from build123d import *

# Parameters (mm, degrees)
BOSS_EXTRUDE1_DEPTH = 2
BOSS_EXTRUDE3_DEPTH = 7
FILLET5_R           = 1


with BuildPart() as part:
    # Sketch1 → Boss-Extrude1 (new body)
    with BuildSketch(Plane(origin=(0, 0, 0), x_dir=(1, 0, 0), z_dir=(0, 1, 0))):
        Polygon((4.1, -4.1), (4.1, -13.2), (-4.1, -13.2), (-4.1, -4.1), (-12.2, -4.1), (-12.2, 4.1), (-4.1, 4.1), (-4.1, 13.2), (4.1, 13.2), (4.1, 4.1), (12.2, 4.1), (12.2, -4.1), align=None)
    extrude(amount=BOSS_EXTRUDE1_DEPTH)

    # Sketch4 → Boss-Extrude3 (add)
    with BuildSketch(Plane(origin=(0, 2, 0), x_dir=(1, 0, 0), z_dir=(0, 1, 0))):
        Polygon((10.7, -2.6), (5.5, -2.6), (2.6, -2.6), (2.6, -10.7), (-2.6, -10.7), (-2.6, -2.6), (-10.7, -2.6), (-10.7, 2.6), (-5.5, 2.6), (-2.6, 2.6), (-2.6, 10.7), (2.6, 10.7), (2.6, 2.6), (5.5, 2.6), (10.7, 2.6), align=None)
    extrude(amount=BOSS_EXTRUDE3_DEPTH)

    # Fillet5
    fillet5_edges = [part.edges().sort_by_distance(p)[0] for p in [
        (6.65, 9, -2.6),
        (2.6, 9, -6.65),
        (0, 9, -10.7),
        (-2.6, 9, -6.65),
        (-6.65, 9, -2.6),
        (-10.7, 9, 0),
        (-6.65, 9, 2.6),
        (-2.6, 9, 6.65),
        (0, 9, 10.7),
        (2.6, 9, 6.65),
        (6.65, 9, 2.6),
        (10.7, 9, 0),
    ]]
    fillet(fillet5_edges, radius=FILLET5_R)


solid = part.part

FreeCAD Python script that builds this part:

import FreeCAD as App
import Part
import Sketcher

V = App.Vector


def edges_at(feature, points):
    """Names of the edges that pass closest to the given points."""
    edges = feature.Shape.Edges
    near = lambda p: min(range(len(edges)), key=lambda i: edges[i].distToShape(Part.Vertex(*p))[0])
    return sorted({f"Edge{near(p) + 1}" for p in points})


def add_polygon(sketch, points):
    """Adds a closed chain of lines whose ends are joined by coincident constraints."""
    first, n = sketch.GeometryCount, len(points)
    for a, b in zip(points, points[1:] + points[:1]):
        sketch.addGeometry(Part.LineSegment(App.Vector(*a, 0), App.Vector(*b, 0)), False)
    for i in range(n):
        sketch.addConstraint(Sketcher.Constraint("Coincident", first + i, 2, first + (i + 1) % n, 1))

doc = App.newDocument("Part")
body = doc.addObject("PartDesign::Body", "Body")

sketch1 = doc.addObject("Sketcher::SketchObject", "Sketch")
body.addObject(sketch1)
sketch1.AttachmentSupport = (doc.XZ_Plane, [""])
sketch1.MapMode = "FlatFace"
add_polygon(sketch1, [(4.1, 13.2), (4.1, 4.1), (12.2, 4.1), (12.2, -4.1), (4.1, -4.1), (4.1, -13.2), (-4.1, -13.2), (-4.1, -4.1), (-12.2, -4.1), (-12.2, 4.1), (-4.1, 4.1), (-4.1, 13.2)])
sketch1.addConstraint([
    Sketcher.Constraint("Vertical", 0),
    Sketcher.Constraint("Horizontal", 1),
    Sketcher.Constraint("Vertical", 2),
    Sketcher.Constraint("Horizontal", 3),
    Sketcher.Constraint("Vertical", 4),
    Sketcher.Constraint("Horizontal", 5),
    Sketcher.Constraint("Vertical", 6),
    Sketcher.Constraint("Horizontal", 7),
    Sketcher.Constraint("Vertical", 8),
    Sketcher.Constraint("Horizontal", 9),
    Sketcher.Constraint("Vertical", 10),
    Sketcher.Constraint("Horizontal", 11),
    Sketcher.Constraint("Symmetric", 0, 2, 6, 2, -1, 1),
    Sketcher.Constraint("Symmetric", 2, 2, 8, 2, -1, 1),
    Sketcher.Constraint("Symmetric", 4, 2, 10, 2, -1, 1),
    Sketcher.Constraint("Symmetric", 3, 2, 6, 2, -2),
    Sketcher.Constraint("Equal", 11, 2),
    Sketcher.Constraint("DistanceX", 1, 1, 1, 2, 8.1),
    Sketcher.Constraint("DistanceX", 5, 2, 5, 1, 8.2),
    Sketcher.Constraint("DistanceY", 0, 2, 0, 1, 9.1),
])
pad1 = doc.addObject("PartDesign::Pad", "Pad")
body.addObject(pad1)
pad1.Profile = sketch1
pad1.Length = 2
pad1.Reversed = True

sketch2 = doc.addObject("Sketcher::SketchObject", "Sketch001")
body.addObject(sketch2)
sketch2.AttachmentSupport = (doc.XZ_Plane, [""])
sketch2.MapMode = "FlatFace"
sketch2.AttachmentOffset = App.Placement(V(0, 0, -2), App.Rotation())
add_polygon(sketch2, [(2.6, 2.6), (10.7, 2.6), (10.7, -2.6), (2.6, -2.6), (2.6, -10.7), (-2.6, -10.7), (-2.6, -2.6), (-10.7, -2.6), (-10.7, 2.6), (-2.6, 2.6), (-2.6, 10.7), (2.6, 10.7)])
sketch2.addConstraint([
    Sketcher.Constraint("Horizontal", 0),
    Sketcher.Constraint("Vertical", 1),
    Sketcher.Constraint("Horizontal", 2),
    Sketcher.Constraint("Vertical", 3),
    Sketcher.Constraint("Horizontal", 4),
    Sketcher.Constraint("Vertical", 5),
    Sketcher.Constraint("Horizontal", 6),
    Sketcher.Constraint("Vertical", 7),
    Sketcher.Constraint("Horizontal", 8),
    Sketcher.Constraint("Vertical", 9),
    Sketcher.Constraint("Horizontal", 10),
    Sketcher.Constraint("Vertical", 11),
    Sketcher.Constraint("Symmetric", 0, 2, 6, 2, -1, 1),
    Sketcher.Constraint("Symmetric", 2, 2, 8, 2, -1, 1),
    Sketcher.Constraint("Symmetric", 4, 2, 10, 2, -1, 1),
    Sketcher.Constraint("Symmetric", 2, 2, 5, 2, -2),
    Sketcher.Constraint("Equal", 10, 1),
    Sketcher.Constraint("Equal", 8, 3),
    Sketcher.Constraint("DistanceX", 0, 1, 0, 2, 8.1),
    Sketcher.Constraint("DistanceX", 4, 2, 4, 1, 5.2),
])
pad2 = doc.addObject("PartDesign::Pad", "Pad001")
body.addObject(pad2)
pad2.Profile = sketch2
pad2.Length = 7
pad2.Reversed = True
doc.recompute()

fillet = doc.addObject("PartDesign::Fillet", "Fillet")
body.addObject(fillet)
fillet.Base = (pad2, edges_at(pad2, [
    (6.65, 9, -2.6),
    (2.6, 9, -6.65),
    (0, 9, -10.7),
    (-2.6, 9, -6.65),
    (-6.65, 9, -2.6),
    (-10.7, 9, 0),
    (-6.65, 9, 2.6),
    (-2.6, 9, 6.65),
    (0, 9, 10.7),
    (2.6, 9, 6.65),
    (6.65, 9, 2.6),
    (10.7, 9, 0),
]))
fillet.Radius = 1

doc.recompute()
